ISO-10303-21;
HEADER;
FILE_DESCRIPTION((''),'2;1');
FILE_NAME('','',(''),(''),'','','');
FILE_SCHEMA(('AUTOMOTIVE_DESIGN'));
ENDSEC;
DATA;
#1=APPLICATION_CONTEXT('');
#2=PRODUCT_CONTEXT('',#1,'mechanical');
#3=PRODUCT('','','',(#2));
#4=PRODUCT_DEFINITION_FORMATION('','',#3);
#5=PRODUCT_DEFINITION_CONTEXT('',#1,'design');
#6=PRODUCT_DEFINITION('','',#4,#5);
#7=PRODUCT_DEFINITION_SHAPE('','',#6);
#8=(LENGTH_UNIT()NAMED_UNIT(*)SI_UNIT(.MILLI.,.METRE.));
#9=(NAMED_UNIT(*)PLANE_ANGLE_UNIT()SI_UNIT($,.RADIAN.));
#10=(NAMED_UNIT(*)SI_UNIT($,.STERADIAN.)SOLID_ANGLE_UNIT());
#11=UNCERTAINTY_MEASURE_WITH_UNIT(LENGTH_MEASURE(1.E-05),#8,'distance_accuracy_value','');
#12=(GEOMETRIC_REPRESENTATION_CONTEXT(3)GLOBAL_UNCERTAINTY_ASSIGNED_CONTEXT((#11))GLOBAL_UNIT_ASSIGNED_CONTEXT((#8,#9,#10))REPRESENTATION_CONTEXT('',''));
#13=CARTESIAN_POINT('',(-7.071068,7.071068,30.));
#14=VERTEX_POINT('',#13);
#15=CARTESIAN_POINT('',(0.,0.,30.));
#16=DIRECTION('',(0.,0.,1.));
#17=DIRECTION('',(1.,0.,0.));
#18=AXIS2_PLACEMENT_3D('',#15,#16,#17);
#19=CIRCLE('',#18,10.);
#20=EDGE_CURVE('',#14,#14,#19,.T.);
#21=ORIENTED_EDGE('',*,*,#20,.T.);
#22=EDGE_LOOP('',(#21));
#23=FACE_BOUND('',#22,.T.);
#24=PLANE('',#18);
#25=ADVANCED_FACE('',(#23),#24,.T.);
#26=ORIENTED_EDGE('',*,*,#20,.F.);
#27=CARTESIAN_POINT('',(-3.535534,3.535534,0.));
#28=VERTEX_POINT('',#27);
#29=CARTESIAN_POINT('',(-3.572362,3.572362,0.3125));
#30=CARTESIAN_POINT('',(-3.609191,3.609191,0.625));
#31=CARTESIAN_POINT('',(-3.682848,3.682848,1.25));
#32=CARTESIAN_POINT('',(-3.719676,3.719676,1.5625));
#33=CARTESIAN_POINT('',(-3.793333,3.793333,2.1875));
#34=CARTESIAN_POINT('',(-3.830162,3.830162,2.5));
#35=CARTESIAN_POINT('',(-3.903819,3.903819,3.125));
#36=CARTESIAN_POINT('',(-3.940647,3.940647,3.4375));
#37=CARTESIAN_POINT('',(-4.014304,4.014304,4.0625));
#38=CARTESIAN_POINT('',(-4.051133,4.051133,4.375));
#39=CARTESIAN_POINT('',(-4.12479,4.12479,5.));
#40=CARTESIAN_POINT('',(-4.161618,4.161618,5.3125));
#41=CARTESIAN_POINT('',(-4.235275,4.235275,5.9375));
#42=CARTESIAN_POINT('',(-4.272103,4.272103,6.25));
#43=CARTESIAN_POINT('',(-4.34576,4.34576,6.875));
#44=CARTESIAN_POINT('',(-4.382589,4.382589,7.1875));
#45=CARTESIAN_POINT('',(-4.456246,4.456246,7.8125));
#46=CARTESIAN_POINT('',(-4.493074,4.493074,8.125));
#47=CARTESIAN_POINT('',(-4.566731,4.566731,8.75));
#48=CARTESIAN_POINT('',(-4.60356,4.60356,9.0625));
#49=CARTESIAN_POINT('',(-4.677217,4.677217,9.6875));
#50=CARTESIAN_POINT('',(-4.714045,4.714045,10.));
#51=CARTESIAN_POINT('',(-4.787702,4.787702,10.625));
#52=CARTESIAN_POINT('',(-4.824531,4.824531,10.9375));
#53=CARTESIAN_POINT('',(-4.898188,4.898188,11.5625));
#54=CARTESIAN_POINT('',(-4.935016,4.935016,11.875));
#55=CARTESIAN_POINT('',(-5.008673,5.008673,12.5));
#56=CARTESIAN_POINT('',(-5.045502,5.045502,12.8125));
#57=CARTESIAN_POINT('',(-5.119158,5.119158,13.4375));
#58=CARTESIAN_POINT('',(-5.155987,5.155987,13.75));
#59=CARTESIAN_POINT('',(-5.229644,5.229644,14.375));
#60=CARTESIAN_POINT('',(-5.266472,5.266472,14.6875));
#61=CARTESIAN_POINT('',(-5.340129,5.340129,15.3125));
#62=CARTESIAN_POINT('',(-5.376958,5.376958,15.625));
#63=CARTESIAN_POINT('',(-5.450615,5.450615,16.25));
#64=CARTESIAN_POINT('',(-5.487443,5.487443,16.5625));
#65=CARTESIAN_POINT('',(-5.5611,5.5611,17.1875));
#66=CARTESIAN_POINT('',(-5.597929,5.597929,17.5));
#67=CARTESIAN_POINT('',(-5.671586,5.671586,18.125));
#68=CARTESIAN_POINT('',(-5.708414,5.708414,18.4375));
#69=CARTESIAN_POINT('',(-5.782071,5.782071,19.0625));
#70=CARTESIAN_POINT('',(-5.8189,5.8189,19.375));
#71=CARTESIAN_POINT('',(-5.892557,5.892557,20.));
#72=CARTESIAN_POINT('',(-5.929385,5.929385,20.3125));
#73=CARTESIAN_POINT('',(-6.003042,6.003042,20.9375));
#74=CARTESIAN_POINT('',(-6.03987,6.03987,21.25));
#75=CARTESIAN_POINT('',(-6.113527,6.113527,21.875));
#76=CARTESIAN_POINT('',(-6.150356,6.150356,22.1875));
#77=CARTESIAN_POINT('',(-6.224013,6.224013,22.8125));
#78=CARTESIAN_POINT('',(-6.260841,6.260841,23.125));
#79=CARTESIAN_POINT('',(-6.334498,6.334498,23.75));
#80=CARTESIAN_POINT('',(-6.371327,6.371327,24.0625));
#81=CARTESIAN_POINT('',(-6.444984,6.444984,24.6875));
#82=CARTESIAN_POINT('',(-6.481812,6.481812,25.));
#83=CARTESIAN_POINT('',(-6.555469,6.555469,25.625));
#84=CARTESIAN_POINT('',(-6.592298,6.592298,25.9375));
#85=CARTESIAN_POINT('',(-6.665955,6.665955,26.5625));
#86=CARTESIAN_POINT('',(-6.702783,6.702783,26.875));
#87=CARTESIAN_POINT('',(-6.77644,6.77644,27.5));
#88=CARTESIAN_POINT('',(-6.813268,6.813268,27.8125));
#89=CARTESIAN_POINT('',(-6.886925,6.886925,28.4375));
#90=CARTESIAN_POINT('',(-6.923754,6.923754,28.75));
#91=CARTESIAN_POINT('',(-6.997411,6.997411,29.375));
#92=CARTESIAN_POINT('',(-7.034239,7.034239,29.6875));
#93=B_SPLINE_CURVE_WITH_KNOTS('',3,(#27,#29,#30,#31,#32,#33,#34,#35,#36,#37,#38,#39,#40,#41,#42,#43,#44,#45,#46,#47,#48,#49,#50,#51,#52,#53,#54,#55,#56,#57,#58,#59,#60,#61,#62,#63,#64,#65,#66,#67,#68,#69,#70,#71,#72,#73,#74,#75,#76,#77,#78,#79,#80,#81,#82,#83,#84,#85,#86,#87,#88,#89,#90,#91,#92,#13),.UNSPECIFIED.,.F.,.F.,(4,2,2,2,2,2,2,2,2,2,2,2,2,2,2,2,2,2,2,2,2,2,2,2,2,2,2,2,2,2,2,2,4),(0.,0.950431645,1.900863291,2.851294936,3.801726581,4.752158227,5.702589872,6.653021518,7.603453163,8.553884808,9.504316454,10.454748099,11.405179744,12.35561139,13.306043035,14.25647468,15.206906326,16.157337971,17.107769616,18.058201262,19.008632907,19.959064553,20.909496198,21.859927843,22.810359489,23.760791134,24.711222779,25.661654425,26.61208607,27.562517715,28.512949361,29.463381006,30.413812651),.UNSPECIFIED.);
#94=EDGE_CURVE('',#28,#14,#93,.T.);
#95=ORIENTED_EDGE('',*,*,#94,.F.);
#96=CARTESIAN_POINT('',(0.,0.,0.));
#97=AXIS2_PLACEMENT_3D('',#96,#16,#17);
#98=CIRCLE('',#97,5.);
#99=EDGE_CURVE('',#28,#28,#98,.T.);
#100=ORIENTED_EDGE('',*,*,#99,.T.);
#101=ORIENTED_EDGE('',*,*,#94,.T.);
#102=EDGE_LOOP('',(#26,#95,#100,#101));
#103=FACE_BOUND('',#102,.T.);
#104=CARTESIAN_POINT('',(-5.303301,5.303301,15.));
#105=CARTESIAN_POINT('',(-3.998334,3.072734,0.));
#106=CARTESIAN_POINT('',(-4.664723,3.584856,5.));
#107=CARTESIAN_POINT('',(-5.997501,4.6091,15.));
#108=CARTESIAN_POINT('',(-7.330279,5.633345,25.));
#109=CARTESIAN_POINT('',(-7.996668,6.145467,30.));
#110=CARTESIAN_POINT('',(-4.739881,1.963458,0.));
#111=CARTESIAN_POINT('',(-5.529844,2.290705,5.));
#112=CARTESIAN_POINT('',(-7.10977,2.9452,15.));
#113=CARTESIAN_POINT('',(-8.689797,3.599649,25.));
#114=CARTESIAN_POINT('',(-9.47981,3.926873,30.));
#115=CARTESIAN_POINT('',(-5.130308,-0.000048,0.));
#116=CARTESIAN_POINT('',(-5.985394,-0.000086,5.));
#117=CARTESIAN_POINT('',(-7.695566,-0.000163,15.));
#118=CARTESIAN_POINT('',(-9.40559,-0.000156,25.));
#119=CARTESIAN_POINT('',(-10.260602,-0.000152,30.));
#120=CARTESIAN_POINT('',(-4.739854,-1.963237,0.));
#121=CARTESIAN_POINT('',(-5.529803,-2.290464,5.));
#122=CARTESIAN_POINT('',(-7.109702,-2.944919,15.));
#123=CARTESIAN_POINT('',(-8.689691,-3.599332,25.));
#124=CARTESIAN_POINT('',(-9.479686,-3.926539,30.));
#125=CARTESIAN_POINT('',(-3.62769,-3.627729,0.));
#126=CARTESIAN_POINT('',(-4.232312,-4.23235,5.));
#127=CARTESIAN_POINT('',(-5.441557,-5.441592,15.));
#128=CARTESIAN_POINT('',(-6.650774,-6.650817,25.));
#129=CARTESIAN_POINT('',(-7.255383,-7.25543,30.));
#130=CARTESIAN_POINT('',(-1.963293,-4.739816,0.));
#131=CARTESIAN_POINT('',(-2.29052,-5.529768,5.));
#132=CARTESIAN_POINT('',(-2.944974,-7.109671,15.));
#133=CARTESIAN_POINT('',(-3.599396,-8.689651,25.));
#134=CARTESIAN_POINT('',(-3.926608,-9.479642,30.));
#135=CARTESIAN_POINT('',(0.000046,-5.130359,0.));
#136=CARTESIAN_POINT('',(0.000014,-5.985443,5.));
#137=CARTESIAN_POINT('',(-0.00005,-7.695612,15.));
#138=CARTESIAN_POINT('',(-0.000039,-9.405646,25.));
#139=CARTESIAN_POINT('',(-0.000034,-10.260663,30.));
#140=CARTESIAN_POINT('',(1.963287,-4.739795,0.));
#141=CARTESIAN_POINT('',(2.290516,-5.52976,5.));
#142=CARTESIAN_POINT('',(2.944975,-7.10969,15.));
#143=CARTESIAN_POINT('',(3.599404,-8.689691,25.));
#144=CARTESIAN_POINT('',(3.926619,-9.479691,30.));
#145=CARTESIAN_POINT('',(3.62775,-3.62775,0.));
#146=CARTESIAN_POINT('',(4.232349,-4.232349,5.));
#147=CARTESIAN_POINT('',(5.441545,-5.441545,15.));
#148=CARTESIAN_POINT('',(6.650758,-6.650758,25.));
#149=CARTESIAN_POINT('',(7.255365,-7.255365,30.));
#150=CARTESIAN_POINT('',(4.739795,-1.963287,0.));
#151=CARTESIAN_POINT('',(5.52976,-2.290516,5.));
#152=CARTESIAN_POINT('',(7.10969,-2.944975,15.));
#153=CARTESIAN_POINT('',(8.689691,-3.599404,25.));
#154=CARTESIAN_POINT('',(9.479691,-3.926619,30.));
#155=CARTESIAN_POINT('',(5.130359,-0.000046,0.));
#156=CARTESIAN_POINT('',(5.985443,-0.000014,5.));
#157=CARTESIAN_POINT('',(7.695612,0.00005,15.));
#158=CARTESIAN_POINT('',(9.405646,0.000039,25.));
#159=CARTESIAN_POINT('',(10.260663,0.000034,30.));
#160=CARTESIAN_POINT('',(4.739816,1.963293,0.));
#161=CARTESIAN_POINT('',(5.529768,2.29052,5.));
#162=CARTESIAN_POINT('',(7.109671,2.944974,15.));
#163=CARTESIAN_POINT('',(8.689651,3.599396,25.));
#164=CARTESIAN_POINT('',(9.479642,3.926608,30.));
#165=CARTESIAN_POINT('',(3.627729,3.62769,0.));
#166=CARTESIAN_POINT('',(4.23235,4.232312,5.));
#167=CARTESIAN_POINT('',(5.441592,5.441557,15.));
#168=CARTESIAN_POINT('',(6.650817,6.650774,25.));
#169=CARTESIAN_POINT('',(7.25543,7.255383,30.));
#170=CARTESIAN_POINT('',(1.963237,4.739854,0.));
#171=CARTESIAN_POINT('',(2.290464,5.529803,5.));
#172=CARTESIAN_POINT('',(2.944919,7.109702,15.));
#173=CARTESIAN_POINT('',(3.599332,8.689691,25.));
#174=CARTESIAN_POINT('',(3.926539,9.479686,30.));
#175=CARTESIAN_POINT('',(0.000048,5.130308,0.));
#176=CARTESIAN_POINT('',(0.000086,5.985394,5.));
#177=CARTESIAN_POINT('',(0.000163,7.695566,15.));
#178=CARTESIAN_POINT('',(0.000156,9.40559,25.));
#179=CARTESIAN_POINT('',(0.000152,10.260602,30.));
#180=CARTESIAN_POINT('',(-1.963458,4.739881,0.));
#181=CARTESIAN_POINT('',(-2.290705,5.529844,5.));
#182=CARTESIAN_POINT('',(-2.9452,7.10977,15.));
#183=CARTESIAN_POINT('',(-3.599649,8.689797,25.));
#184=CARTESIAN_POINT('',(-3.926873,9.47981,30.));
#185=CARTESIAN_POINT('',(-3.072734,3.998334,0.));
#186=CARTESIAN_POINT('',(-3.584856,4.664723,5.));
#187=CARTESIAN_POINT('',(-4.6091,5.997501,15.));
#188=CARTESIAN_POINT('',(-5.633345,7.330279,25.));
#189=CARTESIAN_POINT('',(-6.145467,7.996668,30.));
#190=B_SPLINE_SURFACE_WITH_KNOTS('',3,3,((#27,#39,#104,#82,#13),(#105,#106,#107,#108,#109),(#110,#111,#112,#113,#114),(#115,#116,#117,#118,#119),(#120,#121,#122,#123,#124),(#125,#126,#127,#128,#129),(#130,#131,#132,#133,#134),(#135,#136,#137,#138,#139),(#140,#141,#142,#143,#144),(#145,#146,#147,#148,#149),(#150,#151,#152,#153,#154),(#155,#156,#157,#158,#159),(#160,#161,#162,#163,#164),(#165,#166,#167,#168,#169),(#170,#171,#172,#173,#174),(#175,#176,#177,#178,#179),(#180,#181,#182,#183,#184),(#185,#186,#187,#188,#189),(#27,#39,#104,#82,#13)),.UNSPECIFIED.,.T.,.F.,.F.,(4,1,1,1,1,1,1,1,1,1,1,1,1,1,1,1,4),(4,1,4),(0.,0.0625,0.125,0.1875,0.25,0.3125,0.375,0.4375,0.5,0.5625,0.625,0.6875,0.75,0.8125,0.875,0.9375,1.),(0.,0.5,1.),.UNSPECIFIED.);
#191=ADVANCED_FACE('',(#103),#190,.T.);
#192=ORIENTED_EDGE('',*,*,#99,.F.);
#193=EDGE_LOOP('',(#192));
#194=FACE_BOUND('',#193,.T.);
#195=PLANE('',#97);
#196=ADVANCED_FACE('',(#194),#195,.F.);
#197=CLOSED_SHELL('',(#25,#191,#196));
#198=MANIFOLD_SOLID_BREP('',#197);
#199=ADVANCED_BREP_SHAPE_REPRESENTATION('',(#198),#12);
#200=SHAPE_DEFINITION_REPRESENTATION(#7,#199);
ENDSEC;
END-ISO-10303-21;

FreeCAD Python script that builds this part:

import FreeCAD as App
import Part
import Sketcher
Q = App.Units.Quantity

doc = App.newDocument("Part")
body = doc.addObject("PartDesign::Body", "Body")

sketch1 = body.newObject("Sketcher::SketchObject", "Sketch")
sketch1.AttachmentSupport = (doc.getObject("XY_Plane"), [""])
sketch1.MapMode = "FlatFace"
sketch1.addGeometry(Part.Circle(App.Vector(0, 0, 0), App.Vector(0, 0, 1), 5), False)
sketch1.addConstraint([
    Sketcher.Constraint("Coincident", 0, 3, -1, 1),
    Sketcher.Constraint("Diameter", 0, Q("10 mm")),
])

sketch2 = body.newObject("Sketcher::SketchObject", "Sketch001")
sketch2.AttachmentSupport = (doc.getObject("XY_Plane"), [""])
sketch2.MapMode = "FlatFace"
sketch2.AttachmentOffset = App.Placement(App.Vector(0, 0, 15), App.Rotation())
sketch2.addGeometry(Part.Circle(App.Vector(0, 0, 0), App.Vector(0, 0, 1), 8), False)
sketch2.addConstraint([
    Sketcher.Constraint("Coincident", 0, 3, -1, 1),
    Sketcher.Constraint("Diameter", 0, Q("15 mm")),
])

sketch3 = body.newObject("Sketcher::SketchObject", "Sketch002")
sketch3.AttachmentSupport = (doc.getObject("XY_Plane"), [""])
sketch3.MapMode = "FlatFace"
sketch3.AttachmentOffset = App.Placement(App.Vector(0, 0, 30), App.Rotation())
sketch3.addGeometry(Part.Circle(App.Vector(0, 0, 0), App.Vector(0, 0, 1), 10), False)
sketch3.addConstraint([
    Sketcher.Constraint("Coincident", 0, 3, -1, 1),
    Sketcher.Constraint("Diameter", 0, Q("20 mm")),
])

additiveloft = body.newObject("PartDesign::AdditiveLoft", "AdditiveLoft")
additiveloft.Profile = sketch1
additiveloft.Sections = [sketch2, sketch3]

doc.recompute()
